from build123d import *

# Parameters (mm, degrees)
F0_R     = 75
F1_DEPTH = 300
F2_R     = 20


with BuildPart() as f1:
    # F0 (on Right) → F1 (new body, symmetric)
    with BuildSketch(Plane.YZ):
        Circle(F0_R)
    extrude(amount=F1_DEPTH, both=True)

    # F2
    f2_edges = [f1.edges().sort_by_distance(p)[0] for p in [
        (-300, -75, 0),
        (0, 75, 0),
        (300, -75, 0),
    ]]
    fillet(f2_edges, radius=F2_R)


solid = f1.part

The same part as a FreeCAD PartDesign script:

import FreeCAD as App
import Part
import Sketcher

V = App.Vector
Q = App.Units.Quantity

doc = App.newDocument("Part")
body = doc.addObject("PartDesign::Body", "Body")

sketch1 = body.newObject("Sketcher::SketchObject", "Sketch")
sketch1.AttachmentSupport = (doc.getObject("YZ_Plane"), [""])
sketch1.MapMode = "FlatFace"
sketch1.addGeometry(Part.Circle(V(0, 0, 0), V(0, 0, 1), 75), False)
sketch1.addConstraint([
    Sketcher.Constraint("Coincident", 0, 3, -1, 1),
    Sketcher.Constraint("Diameter", 0, Q("150 mm")),
])
pad1 = body.newObject("PartDesign::Pad", "Pad")
pad1.Profile = sketch1
pad1.Length = 600
pad1.Midplane = True
doc.recompute()

fillet = body.newObject("PartDesign::Fillet", "Fillet")
fillet.Base = (pad1, ["Edge1"])
fillet.UseAllEdges = True
fillet.Radius = 20

doc.recompute()
